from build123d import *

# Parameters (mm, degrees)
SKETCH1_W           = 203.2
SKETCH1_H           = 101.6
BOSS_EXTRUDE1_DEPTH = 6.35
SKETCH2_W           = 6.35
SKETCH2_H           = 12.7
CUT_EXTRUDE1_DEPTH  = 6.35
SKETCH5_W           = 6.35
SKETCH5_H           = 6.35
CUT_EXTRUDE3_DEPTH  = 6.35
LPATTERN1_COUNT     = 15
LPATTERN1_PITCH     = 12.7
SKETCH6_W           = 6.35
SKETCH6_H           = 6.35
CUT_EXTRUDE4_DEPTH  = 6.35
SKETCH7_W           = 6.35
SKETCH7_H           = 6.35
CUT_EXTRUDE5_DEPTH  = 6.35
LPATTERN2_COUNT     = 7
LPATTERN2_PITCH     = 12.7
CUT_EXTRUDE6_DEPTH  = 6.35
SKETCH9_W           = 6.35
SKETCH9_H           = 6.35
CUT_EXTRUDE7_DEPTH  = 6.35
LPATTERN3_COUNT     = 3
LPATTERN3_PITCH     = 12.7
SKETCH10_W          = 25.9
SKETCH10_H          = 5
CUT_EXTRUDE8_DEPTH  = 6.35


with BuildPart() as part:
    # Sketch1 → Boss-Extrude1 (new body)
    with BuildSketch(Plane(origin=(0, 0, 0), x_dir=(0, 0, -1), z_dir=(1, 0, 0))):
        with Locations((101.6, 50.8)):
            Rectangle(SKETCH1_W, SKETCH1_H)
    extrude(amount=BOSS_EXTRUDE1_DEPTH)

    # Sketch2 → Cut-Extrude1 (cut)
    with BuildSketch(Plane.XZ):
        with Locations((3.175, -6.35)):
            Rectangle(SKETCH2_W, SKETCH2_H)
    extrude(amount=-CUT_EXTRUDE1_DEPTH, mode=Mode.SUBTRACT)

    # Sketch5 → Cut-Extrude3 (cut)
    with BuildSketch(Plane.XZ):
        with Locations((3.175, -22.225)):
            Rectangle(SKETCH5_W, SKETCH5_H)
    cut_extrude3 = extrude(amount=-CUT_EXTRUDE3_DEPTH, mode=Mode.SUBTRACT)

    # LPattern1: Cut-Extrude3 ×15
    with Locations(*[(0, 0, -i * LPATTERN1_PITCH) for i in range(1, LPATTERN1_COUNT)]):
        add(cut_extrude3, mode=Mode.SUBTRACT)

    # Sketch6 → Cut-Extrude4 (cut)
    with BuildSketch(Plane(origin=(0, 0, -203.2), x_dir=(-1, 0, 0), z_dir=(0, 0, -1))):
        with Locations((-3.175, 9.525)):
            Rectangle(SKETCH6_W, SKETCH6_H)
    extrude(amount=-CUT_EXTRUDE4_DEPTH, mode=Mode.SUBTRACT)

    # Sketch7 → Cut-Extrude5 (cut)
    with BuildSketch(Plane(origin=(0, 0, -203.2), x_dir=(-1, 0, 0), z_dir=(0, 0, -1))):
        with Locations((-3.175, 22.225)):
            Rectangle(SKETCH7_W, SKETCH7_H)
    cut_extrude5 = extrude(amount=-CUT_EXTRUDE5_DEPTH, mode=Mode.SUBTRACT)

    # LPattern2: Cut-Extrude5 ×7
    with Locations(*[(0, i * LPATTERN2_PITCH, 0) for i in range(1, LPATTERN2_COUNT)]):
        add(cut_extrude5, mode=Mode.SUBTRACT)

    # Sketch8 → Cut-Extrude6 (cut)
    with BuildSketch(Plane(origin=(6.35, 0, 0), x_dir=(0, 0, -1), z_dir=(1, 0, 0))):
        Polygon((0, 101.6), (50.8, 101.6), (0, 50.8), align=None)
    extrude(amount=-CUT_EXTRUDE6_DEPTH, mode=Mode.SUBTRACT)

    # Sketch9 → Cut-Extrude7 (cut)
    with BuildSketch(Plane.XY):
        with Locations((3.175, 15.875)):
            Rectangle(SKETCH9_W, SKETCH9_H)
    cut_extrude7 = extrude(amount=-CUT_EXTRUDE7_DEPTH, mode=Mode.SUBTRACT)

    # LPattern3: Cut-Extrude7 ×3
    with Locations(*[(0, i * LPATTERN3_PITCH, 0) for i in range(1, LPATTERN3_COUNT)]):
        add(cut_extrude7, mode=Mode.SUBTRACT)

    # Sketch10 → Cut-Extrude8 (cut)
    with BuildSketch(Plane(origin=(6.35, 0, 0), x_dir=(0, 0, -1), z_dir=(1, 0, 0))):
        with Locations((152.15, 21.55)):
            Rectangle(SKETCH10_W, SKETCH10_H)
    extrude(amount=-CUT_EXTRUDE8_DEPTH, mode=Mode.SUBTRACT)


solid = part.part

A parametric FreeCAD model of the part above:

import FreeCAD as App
import Part
import Sketcher
Q = App.Units.Quantity

doc = App.newDocument("Part")
body = doc.addObject("PartDesign::Body", "Body")

# Sketch on YZ plane
sketch1 = body.newObject("Sketcher::SketchObject", "Sketch")
sketch1.AttachmentSupport = (doc.getObject("YZ_Plane"), [""])
sketch1.MapMode = "FlatFace"
sketch1.addGeometry([
    Part.LineSegment(App.Vector(101.6, 0, 0), App.Vector(0, 0, 0)),
    Part.LineSegment(App.Vector(0, 0, 0), App.Vector(0, -203.2, 0)),
    Part.LineSegment(App.Vector(0, -203.2, 0), App.Vector(101.6, -203.2, 0)),
    Part.LineSegment(App.Vector(101.6, -203.2, 0), App.Vector(101.6, 0, 0)),
], False)
sketch1.addConstraint([
    Sketcher.Constraint("Coincident", 0, 2, 1, 1),
    Sketcher.Constraint("Coincident", 1, 2, 2, 1),
    Sketcher.Constraint("Coincident", 2, 2, 3, 1),
    Sketcher.Constraint("Coincident", 3, 2, 0, 1),
    Sketcher.Constraint("Horizontal", 0),
    Sketcher.Constraint("Vertical", 1),
    Sketcher.Constraint("Horizontal", 2),
    Sketcher.Constraint("Vertical", 3),
    Sketcher.Constraint("Coincident", 0, 2, -1, 1),
    Sketcher.Constraint("DistanceX", 0, 2, 0, 1, Q("4 in")),
    Sketcher.Constraint("DistanceY", 1, 2, 1, 1, Q("8 in")),
])
pad1 = body.newObject("PartDesign::Pad", "Pad")
pad1.Profile = sketch1
pad1.Length = Q("0.25 in")

# Sketch on XZ plane
sketch2 = body.newObject("Sketcher::SketchObject", "Sketch001")
sketch2.AttachmentSupport = (doc.getObject("XZ_Plane"), [""])
sketch2.MapMode = "FlatFace"
sketch2.addGeometry([
    Part.LineSegment(App.Vector(0, 0, 0), App.Vector(0, -12.7, 0)),
    Part.LineSegment(App.Vector(0, -12.7, 0), App.Vector(6.35, -12.7, 0)),
    Part.LineSegment(App.Vector(6.35, -12.7, 0), App.Vector(6.35, 0, 0)),
    Part.LineSegment(App.Vector(6.35, 0, 0), App.Vector(0, 0, 0)),
], False)
sketch2.addConstraint([
    Sketcher.Constraint("Coincident", 0, 2, 1, 1),
    Sketcher.Constraint("Coincident", 1, 2, 2, 1),
    Sketcher.Constraint("Coincident", 2, 2, 3, 1),
    Sketcher.Constraint("Coincident", 3, 2, 0, 1),
    Sketcher.Constraint("Vertical", 0),
    Sketcher.Constraint("Horizontal", 1),
    Sketcher.Constraint("Vertical", 2),
    Sketcher.Constraint("Horizontal", 3),
    Sketcher.Constraint("Coincident", 3, 2, -1, 1),
    Sketcher.Constraint("DistanceY", 0, 2, 0, 1, Q("0.5 in")),
    Sketcher.Constraint("DistanceX", 1, 1, 1, 2, Q("0.25 in")),
])
pocket1 = body.newObject("PartDesign::Pocket", "Pocket")
pocket1.Profile = sketch2
pocket1.Length = Q("0.25 in")

# Sketch on XZ plane
sketch3 = body.newObject("Sketcher::SketchObject", "Sketch002")
sketch3.AttachmentSupport = (doc.getObject("XZ_Plane"), [""])
sketch3.MapMode = "FlatFace"
sketch3.addGeometry([
    Part.LineSegment(App.Vector(0, -19.05, 0), App.Vector(0, -25.4, 0)),
    Part.LineSegment(App.Vector(0, -25.4, 0), App.Vector(6.35, -25.4, 0)),
    Part.LineSegment(App.Vector(6.35, -25.4, 0), App.Vector(6.35, -19.05, 0)),
    Part.LineSegment(App.Vector(6.35, -19.05, 0), App.Vector(0, -19.05, 0)),
], False)
sketch3.addConstraint([
    Sketcher.Constraint("Coincident", 0, 2, 1, 1),
    Sketcher.Constraint("Coincident", 1, 2, 2, 1),
    Sketcher.Constraint("Coincident", 2, 2, 3, 1),
    Sketcher.Constraint("Coincident", 3, 2, 0, 1),
    Sketcher.Constraint("Vertical", 0),
    Sketcher.Constraint("Horizontal", 1),
    Sketcher.Constraint("Vertical", 2),
    Sketcher.Constraint("Horizontal", 3),
    Sketcher.Constraint("PointOnObject", 0, 2, -2),
    Sketcher.Constraint("Equal", 3, 0),
    Sketcher.Constraint("DistanceY", 0, 2, -1, 1, Q("1 in")),
    Sketcher.Constraint("DistanceX", 1, 1, 1, 2, Q("0.25 in")),
])
pocket2 = body.newObject("PartDesign::Pocket", "Pocket001")
pocket2.Profile = sketch3
pocket2.Length = Q("0.25 in")
doc.recompute()

linearpattern = body.newObject("PartDesign::LinearPattern", "LinearPattern")
linearpattern.Originals = [pocket2]
linearpattern.Direction = (doc.getObject("Z_Axis"), [""])
linearpattern.Mode = "offset"
linearpattern.Offset = Q("0.5 in")
linearpattern.Occurrences = 15
linearpattern.Reversed = True
body.Tip = linearpattern

# Sketch on XY plane
sketch4 = body.newObject("Sketcher::SketchObject", "Sketch003")
sketch4.AttachmentSupport = (doc.getObject("XY_Plane"), [""])
sketch4.MapMode = "FlatFace"
sketch4.AttachmentOffset = App.Placement(App.Vector(0, 0, -8 * 25.4), App.Rotation())
sketch4.addGeometry([
    Part.LineSegment(App.Vector(6.35, 12.7, 0), App.Vector(6.35, 6.35, 0)),
    Part.LineSegment(App.Vector(6.35, 6.35, 0), App.Vector(0, 6.35, 0)),
    Part.LineSegment(App.Vector(0, 6.35, 0), App.Vector(0, 12.7, 0)),
    Part.LineSegment(App.Vector(0, 12.7, 0), App.Vector(6.35, 12.7, 0)),
], False)
sketch4.addConstraint([
    Sketcher.Constraint("Coincident", 0, 2, 1, 1),
    Sketcher.Constraint("Coincident", 1, 2, 2, 1),
    Sketcher.Constraint("Coincident", 2, 2, 3, 1),
    Sketcher.Constraint("Coincident", 3, 2, 0, 1),
    Sketcher.Constraint("Vertical", 0),
    Sketcher.Constraint("Horizontal", 1),
    Sketcher.Constraint("Vertical", 2),
    Sketcher.Constraint("Horizontal", 3),
    Sketcher.Constraint("PointOnObject", 1, 2, -2),
    Sketcher.Constraint("Equal", 3, 0),
    Sketcher.Constraint("DistanceX", 1, 2, 1, 1, Q("0.25 in")),
    Sketcher.Constraint("DistanceY", -1, 1, 2, 2, Q("0.5 in")),
])
pocket3 = body.newObject("PartDesign::Pocket", "Pocket002")
pocket3.Profile = sketch4
pocket3.Length = Q("0.25 in")
pocket3.Reversed = True

# Sketch on XY plane
sketch5 = body.newObject("Sketcher::SketchObject", "Sketch004")
sketch5.AttachmentSupport = (doc.getObject("XY_Plane"), [""])
sketch5.MapMode = "FlatFace"
sketch5.AttachmentOffset = App.Placement(App.Vector(0, 0, -8 * 25.4), App.Rotation())
sketch5.addGeometry([
    Part.LineSegment(App.Vector(6.35, 25.4, 0), App.Vector(6.35, 19.05, 0)),
    Part.LineSegment(App.Vector(6.35, 19.05, 0), App.Vector(0, 19.05, 0)),
    Part.LineSegment(App.Vector(0, 19.05, 0), App.Vector(0, 25.4, 0)),
    Part.LineSegment(App.Vector(0, 25.4, 0), App.Vector(6.35, 25.4, 0)),
], False)
sketch5.addConstraint([
    Sketcher.Constraint("Coincident", 0, 2, 1, 1),
    Sketcher.Constraint("Coincident", 1, 2, 2, 1),
    Sketcher.Constraint("Coincident", 2, 2, 3, 1),
    Sketcher.Constraint("Coincident", 3, 2, 0, 1),
    Sketcher.Constraint("Vertical", 0),
    Sketcher.Constraint("Horizontal", 1),
    Sketcher.Constraint("Vertical", 2),
    Sketcher.Constraint("Horizontal", 3),
    Sketcher.Constraint("PointOnObject", 1, 2, -2),
    Sketcher.Constraint("Equal", 3, 0),
    Sketcher.Constraint("DistanceY", -1, 1, 2, 2, Q("1 in")),
    Sketcher.Constraint("DistanceX", 1, 2, 1, 1, Q("0.25 in")),
])
pocket4 = body.newObject("PartDesign::Pocket", "Pocket003")
pocket4.Profile = sketch5
pocket4.Length = Q("0.25 in")
pocket4.Reversed = True
doc.recompute()

linearpattern2 = body.newObject("PartDesign::LinearPattern", "LinearPattern001")
linearpattern2.Originals = [pocket4]
linearpattern2.Direction = (doc.getObject("Y_Axis"), [""])
linearpattern2.Mode = "offset"
linearpattern2.Offset = Q("0.5 in")
linearpattern2.Occurrences = 7
body.Tip = linearpattern2

# Sketch on YZ plane
sketch6 = body.newObject("Sketcher::SketchObject", "Sketch005")
sketch6.AttachmentSupport = (doc.getObject("YZ_Plane"), [""])
sketch6.MapMode = "FlatFace"
sketch6.AttachmentOffset = App.Placement(App.Vector(0, 0, 0.25 * 25.4), App.Rotation())
sketch6.addGeometry([
    Part.LineSegment(App.Vector(101.6, -50.8, 0), App.Vector(101.6, 0, 0)),
    Part.LineSegment(App.Vector(101.6, 0, 0), App.Vector(50.8, 0, 0)),
    Part.LineSegment(App.Vector(50.8, 0, 0), App.Vector(101.6, -50.8, 0)),
], False)
sketch6.addConstraint([
    Sketcher.Constraint("Coincident", 0, 2, 1, 1),
    Sketcher.Constraint("Coincident", 1, 2, 2, 1),
    Sketcher.Constraint("Coincident", 2, 2, 0, 1),
    Sketcher.Constraint("Vertical", 0),
    Sketcher.Constraint("Horizontal", 1),
    Sketcher.Constraint("PointOnObject", 0, 2, -1),
    Sketcher.Constraint("Equal", 1, 0),
    Sketcher.Constraint("DistanceX", 1, 2, 1, 1, Q("2 in")),
    Sketcher.Constraint("DistanceX", -1, 1, 0, 2, Q("4 in")),
])
pocket5 = body.newObject("PartDesign::Pocket", "Pocket004")
pocket5.Profile = sketch6
pocket5.Length = Q("0.25 in")

# Sketch on XY plane
sketch7 = body.newObject("Sketcher::SketchObject", "Sketch006")
sketch7.AttachmentSupport = (doc.getObject("XY_Plane"), [""])
sketch7.MapMode = "FlatFace"
sketch7.addGeometry([
    Part.LineSegment(App.Vector(0, 19.05, 0), App.Vector(0, 12.7, 0)),
    Part.LineSegment(App.Vector(0, 12.7, 0), App.Vector(6.35, 12.7, 0)),
    Part.LineSegment(App.Vector(6.35, 12.7, 0), App.Vector(6.35, 19.05, 0)),
    Part.LineSegment(App.Vector(6.35, 19.05, 0), App.Vector(0, 19.05, 0)),
], False)
sketch7.addConstraint([
    Sketcher.Constraint("Coincident", 0, 2, 1, 1),
    Sketcher.Constraint("Coincident", 1, 2, 2, 1),
    Sketcher.Constraint("Coincident", 2, 2, 3, 1),
    Sketcher.Constraint("Coincident", 3, 2, 0, 1),
    Sketcher.Constraint("Vertical", 0),
    Sketcher.Constraint("Horizontal", 1),
    Sketcher.Constraint("Vertical", 2),
    Sketcher.Constraint("Horizontal", 3),
    Sketcher.Constraint("PointOnObject", 0, 2, -2),
    Sketcher.Constraint("Equal", 3, 0),
    Sketcher.Constraint("DistanceX", 1, 1, 1, 2, Q("0.25 in")),
    Sketcher.Constraint("DistanceY", -1, 1, 0, 2, Q("0.5 in")),
])
pocket6 = body.newObject("PartDesign::Pocket", "Pocket005")
pocket6.Profile = sketch7
pocket6.Length = Q("0.25 in")
doc.recompute()

linearpattern3 = body.newObject("PartDesign::LinearPattern", "LinearPattern002")
linearpattern3.Originals = [pocket6]
linearpattern3.Direction = (doc.getObject("Y_Axis"), [""])
linearpattern3.Mode = "offset"
linearpattern3.Offset = Q("0.5 in")
linearpattern3.Occurrences = 3
body.Tip = linearpattern3

# Sketch on YZ plane
sketch8 = body.newObject("Sketcher::SketchObject", "Sketch007")
sketch8.AttachmentSupport = (doc.getObject("YZ_Plane"), [""])
sketch8.MapMode = "FlatFace"
sketch8.AttachmentOffset = App.Placement(App.Vector(0, 0, 0.25 * 25.4), App.Rotation())
sketch8.addGeometry([
    Part.LineSegment(App.Vector(24.05, -139.2, 0), App.Vector(19.05, -139.2, 0)),
    Part.LineSegment(App.Vector(19.05, -139.2, 0), App.Vector(19.05, -165.1, 0)),
    Part.LineSegment(App.Vector(19.05, -165.1, 0), App.Vector(24.05, -165.1, 0)),
    Part.LineSegment(App.Vector(24.05, -165.1, 0), App.Vector(24.05, -139.2, 0)),
], False)
sketch8.addConstraint([
    Sketcher.Constraint("Coincident", 0, 2, 1, 1),
    Sketcher.Constraint("Coincident", 1, 2, 2, 1),
    Sketcher.Constraint("Coincident", 2, 2, 3, 1),
    Sketcher.Constraint("Coincident", 3, 2, 0, 1),
    Sketcher.Constraint("Horizontal", 0),
    Sketcher.Constraint("Vertical", 1),
    Sketcher.Constraint("Horizontal", 2),
    Sketcher.Constraint("Vertical", 3),
    Sketcher.Constraint("DistanceY", 1, 2, -1, 1, Q("6.5 in")),
    Sketcher.Constraint("DistanceX", -1, 1, 0, 2, Q("0.75 in")),
    Sketcher.Constraint("DistanceX", 0, 2, 0, 1, Q("5 mm")),
    Sketcher.Constraint("DistanceY", 1, 2, 1, 1, Q("25.9 mm")),
])
pocket7 = body.newObject("PartDesign::Pocket", "Pocket006")
pocket7.Profile = sketch8
pocket7.Length = Q("0.25 in")

doc.recompute()
